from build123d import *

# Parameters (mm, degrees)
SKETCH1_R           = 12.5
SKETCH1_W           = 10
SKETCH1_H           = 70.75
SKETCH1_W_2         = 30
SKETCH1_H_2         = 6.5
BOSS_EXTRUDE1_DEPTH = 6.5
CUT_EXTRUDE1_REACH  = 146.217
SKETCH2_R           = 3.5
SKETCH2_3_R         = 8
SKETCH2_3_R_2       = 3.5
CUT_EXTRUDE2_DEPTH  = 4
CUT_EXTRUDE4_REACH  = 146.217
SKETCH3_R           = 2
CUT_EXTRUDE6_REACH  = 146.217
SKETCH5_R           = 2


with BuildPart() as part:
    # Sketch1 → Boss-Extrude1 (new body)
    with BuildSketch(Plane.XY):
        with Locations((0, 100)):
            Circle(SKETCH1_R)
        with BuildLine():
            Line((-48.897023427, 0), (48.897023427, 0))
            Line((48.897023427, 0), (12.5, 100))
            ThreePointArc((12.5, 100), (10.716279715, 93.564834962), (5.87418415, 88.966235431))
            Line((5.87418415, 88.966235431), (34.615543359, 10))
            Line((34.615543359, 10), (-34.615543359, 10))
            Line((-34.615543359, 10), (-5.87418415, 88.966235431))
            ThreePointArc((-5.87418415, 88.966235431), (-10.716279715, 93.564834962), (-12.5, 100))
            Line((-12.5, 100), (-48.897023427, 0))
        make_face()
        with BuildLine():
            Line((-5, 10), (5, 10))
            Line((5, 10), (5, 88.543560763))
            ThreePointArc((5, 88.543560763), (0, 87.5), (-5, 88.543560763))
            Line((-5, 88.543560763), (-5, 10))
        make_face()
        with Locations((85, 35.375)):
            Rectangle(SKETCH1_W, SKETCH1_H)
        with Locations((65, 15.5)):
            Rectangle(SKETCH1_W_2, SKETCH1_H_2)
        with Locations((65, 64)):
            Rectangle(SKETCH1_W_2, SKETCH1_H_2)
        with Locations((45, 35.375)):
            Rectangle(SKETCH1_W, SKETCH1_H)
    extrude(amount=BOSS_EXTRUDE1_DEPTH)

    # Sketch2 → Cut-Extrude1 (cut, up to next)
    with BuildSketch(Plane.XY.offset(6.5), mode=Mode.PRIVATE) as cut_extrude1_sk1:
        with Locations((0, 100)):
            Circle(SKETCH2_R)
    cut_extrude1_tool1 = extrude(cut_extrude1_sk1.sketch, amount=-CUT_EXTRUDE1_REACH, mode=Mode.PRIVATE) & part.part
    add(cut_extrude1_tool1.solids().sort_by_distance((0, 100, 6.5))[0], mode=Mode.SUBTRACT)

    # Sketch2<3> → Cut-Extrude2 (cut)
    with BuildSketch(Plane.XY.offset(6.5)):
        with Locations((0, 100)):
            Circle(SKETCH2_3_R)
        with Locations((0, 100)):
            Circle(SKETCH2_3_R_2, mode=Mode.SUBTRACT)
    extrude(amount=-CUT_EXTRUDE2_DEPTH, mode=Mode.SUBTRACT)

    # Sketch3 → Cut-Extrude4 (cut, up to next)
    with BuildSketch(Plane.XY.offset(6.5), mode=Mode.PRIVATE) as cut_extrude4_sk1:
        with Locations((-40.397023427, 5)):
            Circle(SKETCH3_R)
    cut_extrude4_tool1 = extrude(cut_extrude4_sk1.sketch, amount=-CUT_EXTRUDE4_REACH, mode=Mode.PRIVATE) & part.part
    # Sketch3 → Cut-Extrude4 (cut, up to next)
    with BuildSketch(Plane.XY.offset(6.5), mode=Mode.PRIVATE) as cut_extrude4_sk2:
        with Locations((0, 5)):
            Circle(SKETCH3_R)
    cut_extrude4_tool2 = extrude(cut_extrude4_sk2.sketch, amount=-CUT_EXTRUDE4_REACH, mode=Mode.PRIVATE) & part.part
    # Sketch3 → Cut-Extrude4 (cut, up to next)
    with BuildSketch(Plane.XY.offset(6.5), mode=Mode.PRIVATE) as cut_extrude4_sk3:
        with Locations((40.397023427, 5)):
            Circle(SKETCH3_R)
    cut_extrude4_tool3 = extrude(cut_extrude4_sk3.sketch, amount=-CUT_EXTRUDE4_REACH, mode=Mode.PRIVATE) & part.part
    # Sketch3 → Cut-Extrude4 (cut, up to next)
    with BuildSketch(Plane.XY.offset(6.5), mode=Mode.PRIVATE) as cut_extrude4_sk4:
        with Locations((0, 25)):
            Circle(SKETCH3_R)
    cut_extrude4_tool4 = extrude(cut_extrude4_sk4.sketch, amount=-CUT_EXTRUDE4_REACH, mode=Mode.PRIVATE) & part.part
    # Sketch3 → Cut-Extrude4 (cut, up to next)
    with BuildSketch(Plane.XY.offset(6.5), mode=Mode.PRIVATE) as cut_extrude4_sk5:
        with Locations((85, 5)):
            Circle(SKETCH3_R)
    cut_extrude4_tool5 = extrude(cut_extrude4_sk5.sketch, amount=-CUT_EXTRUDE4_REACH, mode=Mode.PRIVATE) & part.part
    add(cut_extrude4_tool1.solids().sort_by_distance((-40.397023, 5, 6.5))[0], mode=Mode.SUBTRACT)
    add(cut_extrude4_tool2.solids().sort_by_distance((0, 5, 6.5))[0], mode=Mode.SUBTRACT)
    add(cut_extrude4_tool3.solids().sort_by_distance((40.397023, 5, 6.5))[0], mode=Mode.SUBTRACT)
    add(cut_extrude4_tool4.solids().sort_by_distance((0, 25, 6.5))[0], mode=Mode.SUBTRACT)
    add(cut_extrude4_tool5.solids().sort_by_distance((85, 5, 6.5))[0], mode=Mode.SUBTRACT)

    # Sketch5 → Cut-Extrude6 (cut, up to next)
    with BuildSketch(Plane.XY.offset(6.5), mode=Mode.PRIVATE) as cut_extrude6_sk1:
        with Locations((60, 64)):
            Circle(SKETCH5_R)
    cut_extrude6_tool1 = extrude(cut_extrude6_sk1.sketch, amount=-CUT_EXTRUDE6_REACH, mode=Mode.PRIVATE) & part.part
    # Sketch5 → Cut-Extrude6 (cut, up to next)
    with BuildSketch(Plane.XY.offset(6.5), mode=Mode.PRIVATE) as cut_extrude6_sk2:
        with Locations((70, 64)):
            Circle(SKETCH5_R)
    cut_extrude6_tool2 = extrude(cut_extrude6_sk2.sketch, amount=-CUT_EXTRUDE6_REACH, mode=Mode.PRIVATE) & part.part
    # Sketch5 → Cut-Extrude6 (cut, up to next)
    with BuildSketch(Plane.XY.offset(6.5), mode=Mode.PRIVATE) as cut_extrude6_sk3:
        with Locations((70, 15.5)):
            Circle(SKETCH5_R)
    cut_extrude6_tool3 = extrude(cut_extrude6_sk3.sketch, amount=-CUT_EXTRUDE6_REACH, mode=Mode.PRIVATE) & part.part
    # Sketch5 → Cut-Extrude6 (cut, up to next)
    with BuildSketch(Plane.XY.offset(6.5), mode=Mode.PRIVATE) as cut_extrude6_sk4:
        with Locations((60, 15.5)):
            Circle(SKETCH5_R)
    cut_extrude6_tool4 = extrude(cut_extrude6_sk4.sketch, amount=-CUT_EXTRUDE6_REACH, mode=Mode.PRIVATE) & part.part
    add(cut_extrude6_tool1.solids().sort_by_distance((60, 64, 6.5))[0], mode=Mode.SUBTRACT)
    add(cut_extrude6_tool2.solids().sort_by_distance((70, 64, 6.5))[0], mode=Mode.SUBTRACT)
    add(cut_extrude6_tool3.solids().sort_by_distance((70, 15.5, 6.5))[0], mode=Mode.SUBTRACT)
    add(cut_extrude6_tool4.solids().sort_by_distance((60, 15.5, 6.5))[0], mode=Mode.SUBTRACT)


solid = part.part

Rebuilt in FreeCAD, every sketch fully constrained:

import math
import FreeCAD as App
import Part
import Sketcher

V = App.Vector
Q = App.Units.Quantity

doc = App.newDocument("Part")
params = doc.addObject("Spreadsheet::Sheet", "Params")
for row, (alias, value) in enumerate([
    ("sketch1_radius", "12.5 mm"),
    ("sketch1_width", "30 mm"),
    ("sketch1_width2", "10 mm"),
    ("sketch1_height", "42 mm"),
    ("sketch1_height2", "3.5 mm"),
    ("pad1_length", "6.5 mm"),
    ("sketch2_diameter", "7 mm"),
    ("sketch3_diameter", "16 mm"),
    ("sketch3_diameter2", "7 mm"),
    ("pocket2_length", "4 mm"),
    ("sketch4_diameter", "4 mm"),
    ("sketch5_diameter", "4 mm"),
    ("sketch6_diameter", "4 mm"),
    ("sketch7_diameter", "4 mm"),
    ("sketch8_diameter", "4 mm"),
    ("sketch9_diameter", "4 mm"),
    ("sketch10_diameter", "4 mm"),
    ("sketch11_diameter", "4 mm"),
    ("sketch12_diameter", "4 mm"),
], start=1):
    params.set(f"A{row}", alias)
    params.set(f"B{row}", "=" + value)
    params.setAlias(f"B{row}", alias)

body = doc.addObject("PartDesign::Body", "Body")

# Sketch on XY plane
sketch1 = body.newObject("Sketcher::SketchObject", "Sketch")
sketch1.AttachmentSupport = (doc.getObject("XY_Plane"), [""])
sketch1.MapMode = "FlatFace"
sketch1.addGeometry(Part.LineSegment(V(40, 24.444371, 0), V(12.5, 100, 0)), False)
sketch1.addGeometry(Part.ArcOfCircle(Part.Circle(V(0, 100, 0), V(0, 0, 1), 12.5), math.radians(0), math.radians(180)), False)
sketch1.addGeometry(Part.LineSegment(V(-12.5, 100, 0), V(-48.897023, 0, 0)), False)
sketch1.addGeometry(Part.LineSegment(V(-48.897023, 0, 0), V(50, 0, 0)), False)
sketch1.addGeometry(Part.LineSegment(V(50, 0, 0), V(50, 12.25, 0)), False)
sketch1.addGeometry(Part.LineSegment(V(50, 12.25, 0), V(80, 12.25, 0)), False)
sketch1.addGeometry(Part.LineSegment(V(80, 12.25, 0), V(80, 0, 0)), False)
sketch1.addGeometry(Part.LineSegment(V(80, 0, 0), V(90, 0, 0)), False)
sketch1.addGeometry(Part.LineSegment(V(90, 0, 0), V(90, 70.75, 0)), False)
sketch1.addGeometry(Part.LineSegment(V(90, 70.75, 0), V(80, 70.75, 0)), False)
sketch1.addGeometry(Part.LineSegment(V(80, 70.75, 0), V(80, 67.25, 0)), False)
sketch1.addGeometry(Part.LineSegment(V(80, 67.25, 0), V(50, 67.25, 0)), False)
sketch1.addGeometry(Part.LineSegment(V(50, 67.25, 0), V(50, 70.75, 0)), False)
sketch1.addGeometry(Part.LineSegment(V(50, 70.75, 0), V(40, 70.75, 0)), False)
sketch1.addGeometry(Part.LineSegment(V(40, 70.75, 0), V(40, 24.444371, 0)), False)
sketch1.addGeometry(Part.ArcOfCircle(Part.Circle(V(0, 100, 0), V(0, 0, 1), 12.5), math.radians(-66.421822), math.radians(-61.96994)), False)
sketch1.addGeometry(Part.LineSegment(V(5.874184, 88.966235, 0), V(34.615543, 10, 0)), False)
sketch1.addGeometry(Part.LineSegment(V(34.615543, 10, 0), V(5, 10, 0)), False)
sketch1.addGeometry(Part.LineSegment(V(5, 10, 0), V(5, 88.543561, 0)), False)
sketch1.addGeometry(Part.ArcOfCircle(Part.Circle(V(0, 100, 0), V(0, 0, 1), 12.5), math.radians(-118.03006), math.radians(-113.578178)), False)
sketch1.addGeometry(Part.LineSegment(V(-5, 88.543561, 0), V(-5, 10, 0)), False)
sketch1.addGeometry(Part.LineSegment(V(-5, 10, 0), V(-34.615543, 10, 0)), False)
sketch1.addGeometry(Part.LineSegment(V(-34.615543, 10, 0), V(-5.874184, 88.966235, 0)), False)
sketch1.addGeometry(Part.LineSegment(V(50, 18.75, 0), V(50, 60.75, 0)), False)
sketch1.addGeometry(Part.LineSegment(V(50, 60.75, 0), V(80, 60.75, 0)), False)
sketch1.addGeometry(Part.LineSegment(V(80, 60.75, 0), V(80, 18.75, 0)), False)
sketch1.addGeometry(Part.LineSegment(V(80, 18.75, 0), V(50, 18.75, 0)), False)
sketch1.addConstraint(Sketcher.Constraint("Coincident", 0, 2, 1, 1))
sketch1.addConstraint(Sketcher.Constraint("Coincident", 1, 2, 2, 1))
sketch1.addConstraint(Sketcher.Constraint("Coincident", 2, 2, 3, 1))
sketch1.addConstraint(Sketcher.Constraint("Coincident", 3, 2, 4, 1))
sketch1.addConstraint(Sketcher.Constraint("Coincident", 4, 2, 5, 1))
sketch1.addConstraint(Sketcher.Constraint("Coincident", 5, 2, 6, 1))
sketch1.addConstraint(Sketcher.Constraint("Coincident", 6, 2, 7, 1))
sketch1.addConstraint(Sketcher.Constraint("Coincident", 7, 2, 8, 1))
sketch1.addConstraint(Sketcher.Constraint("Coincident", 8, 2, 9, 1))
sketch1.addConstraint(Sketcher.Constraint("Coincident", 9, 2, 10, 1))
sketch1.addConstraint(Sketcher.Constraint("Coincident", 10, 2, 11, 1))
sketch1.addConstraint(Sketcher.Constraint("Coincident", 11, 2, 12, 1))
sketch1.addConstraint(Sketcher.Constraint("Coincident", 12, 2, 13, 1))
sketch1.addConstraint(Sketcher.Constraint("Coincident", 13, 2, 14, 1))
sketch1.addConstraint(Sketcher.Constraint("Coincident", 14, 2, 0, 1))
sketch1.addConstraint(Sketcher.Constraint("Coincident", 15, 2, 16, 1))
sketch1.addConstraint(Sketcher.Constraint("Coincident", 16, 2, 17, 1))
sketch1.addConstraint(Sketcher.Constraint("Coincident", 17, 2, 18, 1))
sketch1.addConstraint(Sketcher.Constraint("Coincident", 18, 2, 15, 1))
sketch1.addConstraint(Sketcher.Constraint("Coincident", 19, 2, 20, 1))
sketch1.addConstraint(Sketcher.Constraint("Coincident", 20, 2, 21, 1))
sketch1.addConstraint(Sketcher.Constraint("Coincident", 21, 2, 22, 1))
sketch1.addConstraint(Sketcher.Constraint("Coincident", 22, 2, 19, 1))
sketch1.addConstraint(Sketcher.Constraint("Coincident", 23, 2, 24, 1))
sketch1.addConstraint(Sketcher.Constraint("Coincident", 24, 2, 25, 1))
sketch1.addConstraint(Sketcher.Constraint("Coincident", 25, 2, 26, 1))
sketch1.addConstraint(Sketcher.Constraint("Coincident", 26, 2, 23, 1))
sketch1.addConstraint(Sketcher.Constraint("Horizontal", 3))
sketch1.addConstraint(Sketcher.Constraint("Vertical", 4))
sketch1.addConstraint(Sketcher.Constraint("Horizontal", 5))
sketch1.addConstraint(Sketcher.Constraint("Vertical", 6))
sketch1.addConstraint(Sketcher.Constraint("Horizontal", 7))
sketch1.addConstraint(Sketcher.Constraint("Vertical", 8))
sketch1.addConstraint(Sketcher.Constraint("Horizontal", 9))
sketch1.addConstraint(Sketcher.Constraint("Vertical", 10))
sketch1.addConstraint(Sketcher.Constraint("Horizontal", 11))
sketch1.addConstraint(Sketcher.Constraint("Vertical", 12))
sketch1.addConstraint(Sketcher.Constraint("Horizontal", 13))
sketch1.addConstraint(Sketcher.Constraint("Vertical", 14))
sketch1.addConstraint(Sketcher.Constraint("Horizontal", 17))
sketch1.addConstraint(Sketcher.Constraint("Vertical", 18))
sketch1.addConstraint(Sketcher.Constraint("Vertical", 20))
sketch1.addConstraint(Sketcher.Constraint("Horizontal", 21))
sketch1.addConstraint(Sketcher.Constraint("Vertical", 23))
sketch1.addConstraint(Sketcher.Constraint("Horizontal", 24))
sketch1.addConstraint(Sketcher.Constraint("Vertical", 25))
sketch1.addConstraint(Sketcher.Constraint("Horizontal", 26))
sketch1.addConstraint(Sketcher.Constraint("Coincident", 15, 3, 1, 3))
sketch1.addConstraint(Sketcher.Constraint("Coincident", 19, 3, 1, 3))
sketch1.addConstraint(Sketcher.Constraint("Equal", 1, 15))
sketch1.addConstraint(Sketcher.Constraint("Equal", 15, 19))
sketch1.addConstraint(Sketcher.Constraint("Symmetric", 0, 2, 1, 2, -2))
sketch1.addConstraint(Sketcher.Constraint("Symmetric", 17, 2, 20, 2, -2))
sketch1.addConstraint(Sketcher.Constraint("PointOnObject", 2, 2, -1))
sketch1.addConstraint(Sketcher.Constraint("PointOnObject", 6, 2, -1))
sketch1.addConstraint(Sketcher.Constraint("Parallel", 0, 16))
sketch1.addConstraint(Sketcher.Constraint("Parallel", 2, 22))
sketch1.addConstraint(Sketcher.Constraint("Horizontal", 19, 3, 0, 2))
sketch1.addConstraint(Sketcher.Constraint("Horizontal", 9, 2, 12, 2))
sketch1.addConstraint(Sketcher.Constraint("Horizontal", 15, 2, 22, 2))
sketch1.addConstraint(Sketcher.Constraint("Vertical", 6, 2, 9, 2))
sketch1.addConstraint(Sketcher.Constraint("Vertical", 4, 2, 11, 2))
sketch1.addConstraint(Sketcher.Constraint("Vertical", 12, 2, 23, 2))
sketch1.addConstraint(Sketcher.Constraint("Vertical", 10, 2, 24, 2))
sketch1.addConstraint(Sketcher.Constraint("Equal", 9, 13))
sketch1.addConstraint(Sketcher.Constraint("Equal", 17, 21))
sketch1.addConstraint(Sketcher.Constraint("Radius", 1, 12.5))
sketch1.addConstraint(Sketcher.Constraint("DistanceX", 5, 1, 5, 2, 30.0))
sketch1.addConstraint(Sketcher.Constraint("DistanceX", 7, 1, 7, 2, 10.0))
sketch1.addConstraint(Sketcher.Constraint("DistanceY", 23, 1, 23, 2, 42.0))
sketch1.addConstraint(Sketcher.Constraint("Angle", 0, Q("110 deg")))
sketch1.addConstraint(Sketcher.Constraint("DistanceY", 10, 2, 10, 1, 3.5))
sketch1.addConstraint(Sketcher.Constraint("DistanceY", -1, 1, 1, 3, 100.0))
sketch1.addConstraint(Sketcher.Constraint("DistanceX", -1, 1, 3, 2, 50.0))
sketch1.addConstraint(Sketcher.Constraint("DistanceY", -1, 1, 16, 2, 10.0))
sketch1.addConstraint(Sketcher.Constraint("DistanceX", -1, 1, 17, 2, 5.0))
sketch1.addConstraint(Sketcher.Constraint("DistanceY", 5, 2, 10, 2, 55.0))
sketch1.addConstraint(Sketcher.Constraint("DistanceY", 23, 2, 12, 2, 10.0))
sketch1.addConstraint(Sketcher.Constraint("DistanceY", 4, 1, 4, 2, 12.25))
sketch1.addConstraint(Sketcher.Constraint("DistanceX", 17, 2, 17, 1, 29.615543))
sketch1.setExpression("Constraints[66]", "Params.sketch1_radius")
sketch1.setExpression("Constraints[67]", "Params.sketch1_width")
sketch1.setExpression("Constraints[68]", "Params.sketch1_width2")
sketch1.setExpression("Constraints[69]", "Params.sketch1_height")
sketch1.setExpression("Constraints[71]", "Params.sketch1_height2")
pad1 = body.newObject("PartDesign::Pad", "Pad")
pad1.Profile = sketch1
pad1.setExpression("Length", "Params.pad1_length")

# Sketch on XY plane
sketch2 = body.newObject("Sketcher::SketchObject", "Sketch001")
sketch2.AttachmentSupport = (doc.getObject("XY_Plane"), [""])
sketch2.MapMode = "FlatFace"
sketch2.AttachmentOffset = App.Placement(V(0, 0, 6.5), App.Rotation())
sketch2.addGeometry(Part.Circle(V(0, 100, 0), V(0, 0, 1), 3.5), False)
sketch2.addConstraint(Sketcher.Constraint("PointOnObject", 0, 3, -2))
sketch2.addConstraint(Sketcher.Constraint("Diameter", 0, 7.0))
sketch2.addConstraint(Sketcher.Constraint("DistanceY", -1, 1, 0, 3, 100.0))
sketch2.setExpression("Constraints[1]", "Params.sketch2_diameter")
pocket1 = body.newObject("PartDesign::Pocket", "Pocket")
pocket1.Profile = sketch2
pocket1.Type = "UpToFirst"

# Sketch on XY plane
sketch3 = body.newObject("Sketcher::SketchObject", "Sketch002")
sketch3.AttachmentSupport = (doc.getObject("XY_Plane"), [""])
sketch3.MapMode = "FlatFace"
sketch3.AttachmentOffset = App.Placement(V(0, 0, 6.5), App.Rotation())
sketch3.addGeometry(Part.Circle(V(0, 100, 0), V(0, 0, 1), 8), False)
sketch3.addGeometry(Part.Circle(V(0, 100, 0), V(0, 0, 1), 3.5), False)
sketch3.addConstraint(Sketcher.Constraint("Coincident", 1, 3, 0, 3))
sketch3.addConstraint(Sketcher.Constraint("PointOnObject", 0, 3, -2))
sketch3.addConstraint(Sketcher.Constraint("Diameter", 0, 16.0))
sketch3.addConstraint(Sketcher.Constraint("Diameter", 1, 7.0))
sketch3.addConstraint(Sketcher.Constraint("DistanceY", -1, 1, 0, 3, 100.0))
sketch3.setExpression("Constraints[2]", "Params.sketch3_diameter")
sketch3.setExpression("Constraints[3]", "Params.sketch3_diameter2")
pocket2 = body.newObject("PartDesign::Pocket", "Pocket001")
pocket2.Profile = sketch3
pocket2.setExpression("Length", "Params.pocket2_length")

# Sketch on XY plane
sketch4 = body.newObject("Sketcher::SketchObject", "Sketch003")
sketch4.AttachmentSupport = (doc.getObject("XY_Plane"), [""])
sketch4.MapMode = "FlatFace"
sketch4.AttachmentOffset = App.Placement(V(0, 0, 6.5), App.Rotation())
sketch4.addGeometry(Part.Circle(V(-40.397023, 5, 0), V(0, 0, 1), 2), False)
sketch4.addConstraint(Sketcher.Constraint("Diameter", 0, 4.0))
sketch4.addConstraint(Sketcher.Constraint("DistanceY", -1, 1, 0, 3, 5.0))
sketch4.addConstraint(Sketcher.Constraint("DistanceX", 0, 3, -1, 1, 40.397023))
sketch4.setExpression("Constraints[0]", "Params.sketch4_diameter")
pocket3 = body.newObject("PartDesign::Pocket", "Pocket002")
pocket3.Profile = sketch4
pocket3.Type = "UpToFirst"

# Sketch on XY plane
sketch5 = body.newObject("Sketcher::SketchObject", "Sketch004")
sketch5.AttachmentSupport = (doc.getObject("XY_Plane"), [""])
sketch5.MapMode = "FlatFace"
sketch5.AttachmentOffset = App.Placement(V(0, 0, 6.5), App.Rotation())
sketch5.addGeometry(Part.Circle(V(0, 5, 0), V(0, 0, 1), 2), False)
sketch5.addConstraint(Sketcher.Constraint("PointOnObject", 0, 3, -2))
sketch5.addConstraint(Sketcher.Constraint("Diameter", 0, 4.0))
sketch5.addConstraint(Sketcher.Constraint("DistanceY", -1, 1, 0, 3, 5.0))
sketch5.setExpression("Constraints[1]", "Params.sketch5_diameter")
pocket4 = body.newObject("PartDesign::Pocket", "Pocket003")
pocket4.Profile = sketch5
pocket4.Type = "UpToFirst"

# Sketch on XY plane
sketch6 = body.newObject("Sketcher::SketchObject", "Sketch005")
sketch6.AttachmentSupport = (doc.getObject("XY_Plane"), [""])
sketch6.MapMode = "FlatFace"
sketch6.AttachmentOffset = App.Placement(V(0, 0, 6.5), App.Rotation())
sketch6.addGeometry(Part.Circle(V(40.397023, 5, 0), V(0, 0, 1), 2), False)
sketch6.addConstraint(Sketcher.Constraint("Diameter", 0, 4.0))
sketch6.addConstraint(Sketcher.Constraint("DistanceY", -1, 1, 0, 3, 5.0))
sketch6.addConstraint(Sketcher.Constraint("DistanceX", -1, 1, 0, 3, 40.397023))
sketch6.setExpression("Constraints[0]", "Params.sketch6_diameter")
pocket5 = body.newObject("PartDesign::Pocket", "Pocket004")
pocket5.Profile = sketch6
pocket5.Type = "UpToFirst"

# Sketch on XY plane
sketch7 = body.newObject("Sketcher::SketchObject", "Sketch006")
sketch7.AttachmentSupport = (doc.getObject("XY_Plane"), [""])
sketch7.MapMode = "FlatFace"
sketch7.AttachmentOffset = App.Placement(V(0, 0, 6.5), App.Rotation())
sketch7.addGeometry(Part.Circle(V(0, 25, 0), V(0, 0, 1), 2), False)
sketch7.addConstraint(Sketcher.Constraint("PointOnObject", 0, 3, -2))
sketch7.addConstraint(Sketcher.Constraint("Diameter", 0, 4.0))
sketch7.addConstraint(Sketcher.Constraint("DistanceY", -1, 1, 0, 3, 25.0))
sketch7.setExpression("Constraints[1]", "Params.sketch7_diameter")
pocket6 = body.newObject("PartDesign::Pocket", "Pocket005")
pocket6.Profile = sketch7
pocket6.Type = "UpToFirst"

# Sketch on XY plane
sketch8 = body.newObject("Sketcher::SketchObject", "Sketch007")
sketch8.AttachmentSupport = (doc.getObject("XY_Plane"), [""])
sketch8.MapMode = "FlatFace"
sketch8.AttachmentOffset = App.Placement(V(0, 0, 6.5), App.Rotation())
sketch8.addGeometry(Part.Circle(V(85, 5, 0), V(0, 0, 1), 2), False)
sketch8.addConstraint(Sketcher.Constraint("Diameter", 0, 4.0))
sketch8.addConstraint(Sketcher.Constraint("DistanceX", -1, 1, 0, 3, 85.0))
sketch8.addConstraint(Sketcher.Constraint("DistanceY", -1, 1, 0, 3, 5.0))
sketch8.setExpression("Constraints[0]", "Params.sketch8_diameter")
pocket7 = body.newObject("PartDesign::Pocket", "Pocket006")
pocket7.Profile = sketch8
pocket7.Type = "UpToFirst"

# Sketch on XY plane
sketch9 = body.newObject("Sketcher::SketchObject", "Sketch008")
sketch9.AttachmentSupport = (doc.getObject("XY_Plane"), [""])
sketch9.MapMode = "FlatFace"
sketch9.AttachmentOffset = App.Placement(V(0, 0, 6.5), App.Rotation())
sketch9.addGeometry(Part.Circle(V(60, 64, 0), V(0, 0, 1), 2), False)
sketch9.addConstraint(Sketcher.Constraint("Diameter", 0, 4.0))
sketch9.addConstraint(Sketcher.Constraint("DistanceX", -1, 1, 0, 3, 60.0))
sketch9.addConstraint(Sketcher.Constraint("DistanceY", -1, 1, 0, 3, 64.0))
sketch9.setExpression("Constraints[0]", "Params.sketch9_diameter")
pocket8 = body.newObject("PartDesign::Pocket", "Pocket007")
pocket8.Profile = sketch9
pocket8.Type = "UpToFirst"

# Sketch on XY plane
sketch10 = body.newObject("Sketcher::SketchObject", "Sketch009")
sketch10.AttachmentSupport = (doc.getObject("XY_Plane"), [""])
sketch10.MapMode = "FlatFace"
sketch10.AttachmentOffset = App.Placement(V(0, 0, 6.5), App.Rotation())
sketch10.addGeometry(Part.Circle(V(70, 64, 0), V(0, 0, 1), 2), False)
sketch10.addConstraint(Sketcher.Constraint("Diameter", 0, 4.0))
sketch10.addConstraint(Sketcher.Constraint("DistanceX", -1, 1, 0, 3, 70.0))
sketch10.addConstraint(Sketcher.Constraint("DistanceY", -1, 1, 0, 3, 64.0))
sketch10.setExpression("Constraints[0]", "Params.sketch10_diameter")
pocket9 = body.newObject("PartDesign::Pocket", "Pocket008")
pocket9.Profile = sketch10
pocket9.Type = "UpToFirst"

# Sketch on XY plane
sketch11 = body.newObject("Sketcher::SketchObject", "Sketch010")
sketch11.AttachmentSupport = (doc.getObject("XY_Plane"), [""])
sketch11.MapMode = "FlatFace"
sketch11.AttachmentOffset = App.Placement(V(0, 0, 6.5), App.Rotation())
sketch11.addGeometry(Part.Circle(V(70, 15.5, 0), V(0, 0, 1), 2), False)
sketch11.addConstraint(Sketcher.Constraint("Diameter", 0, 4.0))
sketch11.addConstraint(Sketcher.Constraint("DistanceX", -1, 1, 0, 3, 70.0))
sketch11.addConstraint(Sketcher.Constraint("DistanceY", -1, 1, 0, 3, 15.5))
sketch11.setExpression("Constraints[0]", "Params.sketch11_diameter")
pocket10 = body.newObject("PartDesign::Pocket", "Pocket009")
pocket10.Profile = sketch11
pocket10.Type = "UpToFirst"

# Sketch on XY plane
sketch12 = body.newObject("Sketcher::SketchObject", "Sketch011")
sketch12.AttachmentSupport = (doc.getObject("XY_Plane"), [""])
sketch12.MapMode = "FlatFace"
sketch12.AttachmentOffset = App.Placement(V(0, 0, 6.5), App.Rotation())
sketch12.addGeometry(Part.Circle(V(60, 15.5, 0), V(0, 0, 1), 2), False)
sketch12.addConstraint(Sketcher.Constraint("Diameter", 0, 4.0))
sketch12.addConstraint(Sketcher.Constraint("DistanceX", -1, 1, 0, 3, 60.0))
sketch12.addConstraint(Sketcher.Constraint("DistanceY", -1, 1, 0, 3, 15.5))
sketch12.setExpression("Constraints[0]", "Params.sketch12_diameter")
pocket11 = body.newObject("PartDesign::Pocket", "Pocket010")
pocket11.Profile = sketch12
pocket11.Type = "UpToFirst"

doc.recompute()
